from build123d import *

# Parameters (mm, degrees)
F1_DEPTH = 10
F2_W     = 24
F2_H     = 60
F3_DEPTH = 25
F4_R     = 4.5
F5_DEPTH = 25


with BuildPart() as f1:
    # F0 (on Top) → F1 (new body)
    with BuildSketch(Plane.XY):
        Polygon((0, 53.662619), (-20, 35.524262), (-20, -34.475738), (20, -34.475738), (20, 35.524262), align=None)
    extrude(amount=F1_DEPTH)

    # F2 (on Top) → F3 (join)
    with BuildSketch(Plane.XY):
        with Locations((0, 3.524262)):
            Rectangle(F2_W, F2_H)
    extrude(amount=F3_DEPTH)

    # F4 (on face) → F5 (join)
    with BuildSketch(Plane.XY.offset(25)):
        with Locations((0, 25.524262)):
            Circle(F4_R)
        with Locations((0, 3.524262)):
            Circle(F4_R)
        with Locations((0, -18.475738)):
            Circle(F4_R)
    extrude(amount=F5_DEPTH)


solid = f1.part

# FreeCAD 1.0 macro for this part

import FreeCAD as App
import Part
import Sketcher

V = App.Vector

doc = App.newDocument("Part")
body = doc.addObject("PartDesign::Body", "Body")

sketch1 = body.newObject("Sketcher::SketchObject", "Sketch")
sketch1.AttachmentSupport = (doc.getObject("XY_Plane"), [""])
sketch1.MapMode = "FlatFace"
sketch1.addGeometry([
    Part.LineSegment(V(0, 54, 0), V(-20, 36, 0)),
    Part.LineSegment(V(-20, 36, 0), V(-20, -34, 0)),
    Part.LineSegment(V(-20, -34, 0), V(20, -34, 0)),
    Part.LineSegment(V(20, -34, 0), V(20, 36, 0)),
    Part.LineSegment(V(20, 36, 0), V(0, 54, 0)),
], False)
sketch1.addConstraint([
    Sketcher.Constraint("Coincident", 0, 2, 1, 1),
    Sketcher.Constraint("Coincident", 1, 2, 2, 1),
    Sketcher.Constraint("Coincident", 2, 2, 3, 1),
    Sketcher.Constraint("Coincident", 3, 2, 4, 1),
    Sketcher.Constraint("Coincident", 4, 2, 0, 1),
    Sketcher.Constraint("Vertical", 1),
    Sketcher.Constraint("Horizontal", 2),
    Sketcher.Constraint("Vertical", 3),
    Sketcher.Constraint("Symmetric", 0, 2, 3, 2, -2),
    Sketcher.Constraint("PointOnObject", 4, 2, -2),
    Sketcher.Constraint("DistanceX", 2, 1, 2, 2, 40.0),
    Sketcher.Constraint("DistanceY", 1, 2, 1, 1, 70.0),
    Sketcher.Constraint("Distance", 0, 27.0),
    Sketcher.Constraint("DistanceY", -1, 1, 4, 2, 53.662619),
])
pad1 = body.newObject("PartDesign::Pad", "Pad")
pad1.Profile = sketch1
pad1.Length = 10

sketch2 = body.newObject("Sketcher::SketchObject", "Sketch001")
sketch2.AttachmentSupport = (doc.getObject("XY_Plane"), [""])
sketch2.MapMode = "FlatFace"
sketch2.addGeometry([
    Part.LineSegment(V(-12, 34, 0), V(-12, -26, 0)),
    Part.LineSegment(V(-12, -26, 0), V(12, -26, 0)),
    Part.LineSegment(V(12, -26, 0), V(12, 34, 0)),
    Part.LineSegment(V(12, 34, 0), V(-12, 34, 0)),
], False)
sketch2.addConstraint([
    Sketcher.Constraint("Coincident", 0, 2, 1, 1),
    Sketcher.Constraint("Coincident", 1, 2, 2, 1),
    Sketcher.Constraint("Coincident", 2, 2, 3, 1),
    Sketcher.Constraint("Coincident", 3, 2, 0, 1),
    Sketcher.Constraint("Vertical", 0),
    Sketcher.Constraint("Horizontal", 1),
    Sketcher.Constraint("Vertical", 2),
    Sketcher.Constraint("Horizontal", 3),
    Sketcher.Constraint("DistanceX", 1, 1, 1, 2, 24.0),
    Sketcher.Constraint("DistanceY", 0, 2, 0, 1, 60.0),
    Sketcher.Constraint("DistanceX", 0, 2, -1, 1, 12.0),
    Sketcher.Constraint("DistanceY", 0, 2, -1, 1, 26.475738),
])
pad2 = body.newObject("PartDesign::Pad", "Pad001")
pad2.Profile = sketch2
pad2.Length = 25

sketch3 = body.newObject("Sketcher::SketchObject", "Sketch002")
sketch3.AttachmentSupport = (doc.getObject("XY_Plane"), [""])
sketch3.MapMode = "FlatFace"
sketch3.AttachmentOffset = App.Placement(V(0, 0, 25), App.Rotation())
sketch3.addGeometry([
    Part.Circle(V(0, 25.5, 0), V(0, 0, 1), 4.5),
    Part.Circle(V(0, 3.5, 0), V(0, 0, 1), 4.5),
    Part.Circle(V(0, -18.5, 0), V(0, 0, 1), 4.5),
], False)
sketch3.addConstraint([
    Sketcher.Constraint("Equal", 0, 1),
    Sketcher.Constraint("Equal", 1, 2),
    Sketcher.Constraint("PointOnObject", 0, 3, -2),
    Sketcher.Constraint("PointOnObject", 1, 3, -2),
    Sketcher.Constraint("PointOnObject", 2, 3, -2),
    Sketcher.Constraint("Diameter", 0, 9.0),
    Sketcher.Constraint("DistanceY", 1, 3, 0, 3, 22.0),
    Sketcher.Constraint("DistanceY", 2, 3, 1, 3, 22.0),
    Sketcher.Constraint("DistanceY", -1, 1, 0, 3, 25.524262),
])
pad3 = body.newObject("PartDesign::Pad", "Pad002")
pad3.Profile = sketch3
pad3.Length = 25

doc.recompute()
